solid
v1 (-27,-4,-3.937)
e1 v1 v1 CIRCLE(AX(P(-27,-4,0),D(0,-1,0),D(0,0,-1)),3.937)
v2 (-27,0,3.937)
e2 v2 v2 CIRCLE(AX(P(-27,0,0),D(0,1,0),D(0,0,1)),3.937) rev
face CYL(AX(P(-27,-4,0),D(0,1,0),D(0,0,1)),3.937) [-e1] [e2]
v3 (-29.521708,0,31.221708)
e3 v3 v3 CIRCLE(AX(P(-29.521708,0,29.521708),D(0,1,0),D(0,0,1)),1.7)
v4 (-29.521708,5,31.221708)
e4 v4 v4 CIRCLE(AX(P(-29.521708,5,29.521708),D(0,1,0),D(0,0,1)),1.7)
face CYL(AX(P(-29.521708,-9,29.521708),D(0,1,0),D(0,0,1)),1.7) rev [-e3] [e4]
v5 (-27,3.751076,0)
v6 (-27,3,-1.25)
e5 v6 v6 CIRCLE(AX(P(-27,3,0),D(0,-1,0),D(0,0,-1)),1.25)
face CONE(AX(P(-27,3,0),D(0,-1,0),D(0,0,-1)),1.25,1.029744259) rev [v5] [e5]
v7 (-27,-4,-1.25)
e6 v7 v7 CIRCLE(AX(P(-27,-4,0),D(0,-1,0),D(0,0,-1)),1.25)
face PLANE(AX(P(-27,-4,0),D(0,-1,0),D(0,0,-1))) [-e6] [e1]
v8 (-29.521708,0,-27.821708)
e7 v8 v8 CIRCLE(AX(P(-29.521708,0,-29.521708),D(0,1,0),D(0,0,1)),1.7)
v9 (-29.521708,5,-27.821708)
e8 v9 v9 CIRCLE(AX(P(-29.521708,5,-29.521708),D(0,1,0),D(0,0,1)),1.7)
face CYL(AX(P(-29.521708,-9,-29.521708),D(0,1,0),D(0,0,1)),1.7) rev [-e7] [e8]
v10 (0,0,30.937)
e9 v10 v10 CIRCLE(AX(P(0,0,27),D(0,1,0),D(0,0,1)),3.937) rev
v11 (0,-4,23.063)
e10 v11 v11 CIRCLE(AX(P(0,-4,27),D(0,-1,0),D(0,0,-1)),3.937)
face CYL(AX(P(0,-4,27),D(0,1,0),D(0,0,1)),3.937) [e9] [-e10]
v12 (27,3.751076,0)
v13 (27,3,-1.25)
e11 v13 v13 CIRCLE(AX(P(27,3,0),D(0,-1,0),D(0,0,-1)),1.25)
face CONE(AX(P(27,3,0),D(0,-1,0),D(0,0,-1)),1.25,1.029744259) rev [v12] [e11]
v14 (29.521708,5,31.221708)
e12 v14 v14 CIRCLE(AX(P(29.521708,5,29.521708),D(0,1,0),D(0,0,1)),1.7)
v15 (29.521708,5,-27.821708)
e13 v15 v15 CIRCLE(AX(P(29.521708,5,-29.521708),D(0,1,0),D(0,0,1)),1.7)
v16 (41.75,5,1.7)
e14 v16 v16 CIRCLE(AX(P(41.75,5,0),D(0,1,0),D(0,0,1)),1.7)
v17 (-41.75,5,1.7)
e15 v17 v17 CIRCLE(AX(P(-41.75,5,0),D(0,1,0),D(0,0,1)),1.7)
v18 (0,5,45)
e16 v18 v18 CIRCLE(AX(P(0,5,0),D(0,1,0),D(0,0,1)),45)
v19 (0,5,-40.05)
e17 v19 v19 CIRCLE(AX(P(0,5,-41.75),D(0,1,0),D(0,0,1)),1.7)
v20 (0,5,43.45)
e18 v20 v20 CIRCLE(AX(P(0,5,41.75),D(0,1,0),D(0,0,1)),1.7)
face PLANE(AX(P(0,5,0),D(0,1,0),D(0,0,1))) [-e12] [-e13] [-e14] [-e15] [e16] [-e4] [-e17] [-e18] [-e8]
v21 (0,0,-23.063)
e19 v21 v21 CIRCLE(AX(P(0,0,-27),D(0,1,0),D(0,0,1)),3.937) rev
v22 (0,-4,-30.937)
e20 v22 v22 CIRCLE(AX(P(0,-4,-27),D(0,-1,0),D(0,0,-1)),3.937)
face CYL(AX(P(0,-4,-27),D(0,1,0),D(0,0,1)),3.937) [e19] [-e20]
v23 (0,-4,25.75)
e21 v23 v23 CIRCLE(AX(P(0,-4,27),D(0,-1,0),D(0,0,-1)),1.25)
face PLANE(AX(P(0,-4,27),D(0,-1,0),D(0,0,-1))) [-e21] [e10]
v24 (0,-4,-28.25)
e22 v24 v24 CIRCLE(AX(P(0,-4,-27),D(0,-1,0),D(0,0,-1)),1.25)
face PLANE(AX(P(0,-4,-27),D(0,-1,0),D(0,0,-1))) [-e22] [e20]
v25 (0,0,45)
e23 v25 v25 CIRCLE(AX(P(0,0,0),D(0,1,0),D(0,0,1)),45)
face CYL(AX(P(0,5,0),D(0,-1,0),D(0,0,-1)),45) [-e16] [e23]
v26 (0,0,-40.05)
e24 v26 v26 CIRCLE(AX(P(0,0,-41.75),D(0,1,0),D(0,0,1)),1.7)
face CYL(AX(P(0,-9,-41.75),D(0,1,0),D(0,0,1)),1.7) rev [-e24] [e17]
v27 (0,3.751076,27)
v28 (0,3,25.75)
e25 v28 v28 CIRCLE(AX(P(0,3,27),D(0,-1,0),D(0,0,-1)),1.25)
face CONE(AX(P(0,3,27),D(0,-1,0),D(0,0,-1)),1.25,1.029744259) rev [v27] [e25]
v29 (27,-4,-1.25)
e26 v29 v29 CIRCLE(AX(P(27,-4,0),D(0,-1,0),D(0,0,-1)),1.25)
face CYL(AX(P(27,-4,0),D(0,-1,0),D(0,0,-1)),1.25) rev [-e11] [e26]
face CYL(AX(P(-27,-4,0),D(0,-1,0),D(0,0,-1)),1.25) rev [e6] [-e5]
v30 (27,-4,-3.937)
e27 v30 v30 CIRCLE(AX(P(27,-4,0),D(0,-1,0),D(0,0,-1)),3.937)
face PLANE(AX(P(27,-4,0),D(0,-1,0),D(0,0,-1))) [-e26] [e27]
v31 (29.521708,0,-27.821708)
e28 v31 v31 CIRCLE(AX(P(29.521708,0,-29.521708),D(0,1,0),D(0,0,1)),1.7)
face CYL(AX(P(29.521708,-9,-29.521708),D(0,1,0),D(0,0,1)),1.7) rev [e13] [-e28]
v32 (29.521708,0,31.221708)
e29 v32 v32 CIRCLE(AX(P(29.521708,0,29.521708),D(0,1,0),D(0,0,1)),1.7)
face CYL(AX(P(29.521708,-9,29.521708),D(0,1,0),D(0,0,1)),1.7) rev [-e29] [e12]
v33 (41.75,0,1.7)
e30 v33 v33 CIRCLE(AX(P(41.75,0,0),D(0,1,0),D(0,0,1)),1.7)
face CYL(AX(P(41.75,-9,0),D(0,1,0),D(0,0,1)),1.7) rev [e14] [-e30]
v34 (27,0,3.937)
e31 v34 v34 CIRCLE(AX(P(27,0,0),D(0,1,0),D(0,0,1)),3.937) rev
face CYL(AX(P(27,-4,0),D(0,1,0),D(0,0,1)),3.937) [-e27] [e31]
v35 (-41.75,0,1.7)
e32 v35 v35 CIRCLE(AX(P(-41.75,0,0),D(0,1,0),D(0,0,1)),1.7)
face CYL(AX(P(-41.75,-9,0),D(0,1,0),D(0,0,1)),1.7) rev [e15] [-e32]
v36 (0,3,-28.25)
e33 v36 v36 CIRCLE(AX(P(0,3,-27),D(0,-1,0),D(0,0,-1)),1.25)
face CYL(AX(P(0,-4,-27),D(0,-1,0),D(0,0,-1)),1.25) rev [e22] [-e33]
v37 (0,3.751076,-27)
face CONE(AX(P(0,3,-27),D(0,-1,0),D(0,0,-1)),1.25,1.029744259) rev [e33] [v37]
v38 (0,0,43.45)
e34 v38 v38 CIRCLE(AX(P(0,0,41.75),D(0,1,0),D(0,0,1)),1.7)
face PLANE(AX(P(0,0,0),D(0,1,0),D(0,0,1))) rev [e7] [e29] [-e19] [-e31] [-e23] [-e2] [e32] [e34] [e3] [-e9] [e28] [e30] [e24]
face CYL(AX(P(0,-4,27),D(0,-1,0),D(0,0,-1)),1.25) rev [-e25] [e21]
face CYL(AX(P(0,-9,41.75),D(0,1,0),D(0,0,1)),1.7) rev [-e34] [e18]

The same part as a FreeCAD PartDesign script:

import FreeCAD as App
import Part
import Sketcher

V = App.Vector

doc = App.newDocument("Part")
body = doc.addObject("PartDesign::Body", "Body")

# Sketch on XZ plane
sketch1 = body.newObject("Sketcher::SketchObject", "Sketch")
sketch1.AttachmentSupport = (doc.getObject("XZ_Plane"), [""])
sketch1.MapMode = "FlatFace"
sketch1.addGeometry(Part.Circle(V(0, 0, 0), V(0, 0, 1), 45), False)
sketch1.addGeometry(Part.Circle(V(-29.5, -29.5, 0), V(0, 0, 1), 1.5), False)
sketch1.addGeometry(Part.Circle(V(0, -41.8, 0), V(0, 0, 1), 1.5), False)
sketch1.addGeometry(Part.Circle(V(-41.8, 0, 0), V(0, 0, 1), 1.5), False)
sketch1.addGeometry(Part.Circle(V(-29.5, 29.5, 0), V(0, 0, 1), 1.5), False)
sketch1.addGeometry(Part.Circle(V(29.5, -29.5, 0), V(0, 0, 1), 1.5), False)
sketch1.addGeometry(Part.Circle(V(41.8, 0, 0), V(0, 0, 1), 1.5), False)
sketch1.addGeometry(Part.Circle(V(0, 41.8, 0), V(0, 0, 1), 1.5), False)
sketch1.addGeometry(Part.Circle(V(29.5, 29.5, 0), V(0, 0, 1), 1.5), False)
sketch1.addConstraint(Sketcher.Constraint("Coincident", 0, 3, -1, 1))
sketch1.addConstraint(Sketcher.Constraint("Equal", 1, 2))
sketch1.addConstraint(Sketcher.Constraint("Equal", 2, 3))
sketch1.addConstraint(Sketcher.Constraint("Equal", 3, 4))
sketch1.addConstraint(Sketcher.Constraint("Equal", 4, 5))
sketch1.addConstraint(Sketcher.Constraint("Equal", 5, 6))
sketch1.addConstraint(Sketcher.Constraint("Equal", 6, 7))
sketch1.addConstraint(Sketcher.Constraint("Equal", 7, 8))
sketch1.addConstraint(Sketcher.Constraint("Symmetric", 4, 3, 5, 3, -1, 1))
sketch1.addConstraint(Sketcher.Constraint("Symmetric", 3, 3, 6, 3, -1, 1))
sketch1.addConstraint(Sketcher.Constraint("Symmetric", 2, 3, 7, 3, -1, 1))
sketch1.addConstraint(Sketcher.Constraint("Symmetric", 1, 3, 8, 3, -1, 1))
sketch1.addConstraint(Sketcher.Constraint("Symmetric", 1, 3, 5, 3, -2))
sketch1.addConstraint(Sketcher.Constraint("PointOnObject", 2, 3, -2))
sketch1.addConstraint(Sketcher.Constraint("PointOnObject", 3, 3, -1))
sketch1.addConstraint(Sketcher.Constraint("Diameter", 0, 90.0))
sketch1.addConstraint(Sketcher.Constraint("Diameter", 1, 3.0))
sketch1.addConstraint(Sketcher.Constraint("DistanceY", 2, 3, -1, 1, 41.75))
sketch1.addConstraint(Sketcher.Constraint("DistanceX", 3, 3, -1, 1, 41.75))
sketch1.addConstraint(Sketcher.Constraint("DistanceX", 1, 3, -1, 1, 29.521708))
sketch1.addConstraint(Sketcher.Constraint("DistanceY", 1, 3, -1, 1, 29.521708))
pad1 = body.newObject("PartDesign::Pad", "Pad")
pad1.Profile = sketch1
pad1.Length = 5
pad1.Reversed = True

# Sketch on XZ plane
sketch2 = body.newObject("Sketcher::SketchObject", "Sketch001")
sketch2.AttachmentSupport = (doc.getObject("XZ_Plane"), [""])
sketch2.MapMode = "FlatFace"
sketch2.addGeometry(Part.Circle(V(27, 0, 0), V(0, 0, 1), 3.9), False)
sketch2.addGeometry(Part.Circle(V(0, -27, 0), V(0, 0, 1), 3.9), False)
sketch2.addGeometry(Part.Circle(V(-27, 0, 0), V(0, 0, 1), 3.9), False)
sketch2.addGeometry(Part.Circle(V(0, 27, 0), V(0, 0, 1), 3.9), False)
sketch2.addConstraint(Sketcher.Constraint("Equal", 0, 1))
sketch2.addConstraint(Sketcher.Constraint("Equal", 1, 2))
sketch2.addConstraint(Sketcher.Constraint("Equal", 2, 3))
sketch2.addConstraint(Sketcher.Constraint("Symmetric", 0, 3, 2, 3, -1, 1))
sketch2.addConstraint(Sketcher.Constraint("Symmetric", 1, 3, 3, 3, -1, 1))
sketch2.addConstraint(Sketcher.Constraint("PointOnObject", 0, 3, -1))
sketch2.addConstraint(Sketcher.Constraint("PointOnObject", 1, 3, -2))
sketch2.addConstraint(Sketcher.Constraint("Diameter", 0, 7.874))
sketch2.addConstraint(Sketcher.Constraint("DistanceX", -1, 1, 0, 3, 27.0))
sketch2.addConstraint(Sketcher.Constraint("DistanceY", 1, 3, -1, 1, 27.0))
pad2 = body.newObject("PartDesign::Pad", "Pad001")
pad2.Profile = sketch2
pad2.Length = 4

# Sketch on XZ plane
sketch3 = body.newObject("Sketcher::SketchObject", "Sketch002")
sketch3.AttachmentSupport = (doc.getObject("XZ_Plane"), [""])
sketch3.MapMode = "FlatFace"
sketch3.AttachmentOffset = App.Placement(V(0, 0, -5), App.Rotation())
sketch3.addGeometry(Part.Circle(V(0, -41.8, 0), V(0, 0, 1), 1.7), False)
sketch3.addGeometry(Part.Circle(V(29.5, -29.5, 0), V(0, 0, 1), 1.7), False)
sketch3.addGeometry(Part.Circle(V(41.8, 0, 0), V(0, 0, 1), 1.7), False)
sketch3.addGeometry(Part.Circle(V(29.5, 29.5, 0), V(0, 0, 1), 1.7), False)
sketch3.addGeometry(Part.Circle(V(0, 41.8, 0), V(0, 0, 1), 1.7), False)
sketch3.addGeometry(Part.Circle(V(-29.5, 29.5, 0), V(0, 0, 1), 1.7), False)
sketch3.addGeometry(Part.Circle(V(-41.8, 0, 0), V(0, 0, 1), 1.7), False)
sketch3.addGeometry(Part.Circle(V(-29.5, -29.5, 0), V(0, 0, 1), 1.7), False)
sketch3.addConstraint(Sketcher.Constraint("Equal", 0, 1))
sketch3.addConstraint(Sketcher.Constraint("Equal", 1, 2))
sketch3.addConstraint(Sketcher.Constraint("Equal", 2, 3))
sketch3.addConstraint(Sketcher.Constraint("Equal", 3, 4))
sketch3.addConstraint(Sketcher.Constraint("Equal", 4, 5))
sketch3.addConstraint(Sketcher.Constraint("Equal", 5, 6))
sketch3.addConstraint(Sketcher.Constraint("Equal", 6, 7))
sketch3.addConstraint(Sketcher.Constraint("Symmetric", 0, 3, 4, 3, -1, 1))
sketch3.addConstraint(Sketcher.Constraint("Symmetric", 1, 3, 5, 3, -1, 1))
sketch3.addConstraint(Sketcher.Constraint("Symmetric", 2, 3, 6, 3, -1, 1))
sketch3.addConstraint(Sketcher.Constraint("Symmetric", 3, 3, 7, 3, -1, 1))
sketch3.addConstraint(Sketcher.Constraint("Symmetric", 3, 3, 5, 3, -2))
sketch3.addConstraint(Sketcher.Constraint("PointOnObject", 0, 3, -2))
sketch3.addConstraint(Sketcher.Constraint("PointOnObject", 2, 3, -1))
sketch3.addConstraint(Sketcher.Constraint("Diameter", 0, 3.4))
sketch3.addConstraint(Sketcher.Constraint("DistanceY", 0, 3, 4, 3, 83.5))
sketch3.addConstraint(Sketcher.Constraint("DistanceX", -1, 1, 2, 3, 41.75))
sketch3.addConstraint(Sketcher.Constraint("DistanceX", -1, 1, 1, 3, 29.521708))
sketch3.addConstraint(Sketcher.Constraint("DistanceY", 1, 3, -1, 1, 29.521708))
pocket1 = body.newObject("PartDesign::Pocket", "Pocket")
pocket1.Profile = sketch3
pocket1.Length = 14
pocket1.Reversed = True

# Sketch on XZ plane
sketch4 = body.newObject("Sketcher::SketchObject", "Sketch003")
sketch4.AttachmentSupport = (doc.getObject("XZ_Plane"), [""])
sketch4.MapMode = "FlatFace"
sketch4.AttachmentOffset = App.Placement(V(0, 0, 4), App.Rotation())
sketch4.addGeometry(Part.Circle(V(0, 27, 0), V(0, 0, 1), 1.2), False)
sketch4.addGeometry(Part.Circle(V(27, 0, 0), V(0, 0, 1), 1.2), False)
sketch4.addGeometry(Part.Circle(V(0, -27, 0), V(0, 0, 1), 1.2), False)
sketch4.addGeometry(Part.Circle(V(-27, 0, 0), V(0, 0, 1), 1.2), False)
sketch4.addConstraint(Sketcher.Constraint("Equal", 0, 1))
sketch4.addConstraint(Sketcher.Constraint("Equal", 1, 2))
sketch4.addConstraint(Sketcher.Constraint("Equal", 2, 3))
sketch4.addConstraint(Sketcher.Constraint("Symmetric", 0, 3, 2, 3, -1, 1))
sketch4.addConstraint(Sketcher.Constraint("Symmetric", 1, 3, 3, 3, -1, 1))
sketch4.addConstraint(Sketcher.Constraint("PointOnObject", 0, 3, -2))
sketch4.addConstraint(Sketcher.Constraint("PointOnObject", 1, 3, -1))
sketch4.addConstraint(Sketcher.Constraint("Diameter", 0, 2.5))
sketch4.addConstraint(Sketcher.Constraint("DistanceY", -1, 1, 0, 3, 27.0))
sketch4.addConstraint(Sketcher.Constraint("DistanceX", -1, 1, 1, 3, 27.0))
doc.recompute()
hole = body.newObject("PartDesign::Hole", "Hole")
hole.Profile = sketch4
hole.ThreadType = "None"
hole.Diameter = 2.5
hole.DepthType = "Dimension"
hole.Depth = 7
hole.DrillPoint = "Angled"
hole.DrillPointAngle = 118

doc.recompute()
